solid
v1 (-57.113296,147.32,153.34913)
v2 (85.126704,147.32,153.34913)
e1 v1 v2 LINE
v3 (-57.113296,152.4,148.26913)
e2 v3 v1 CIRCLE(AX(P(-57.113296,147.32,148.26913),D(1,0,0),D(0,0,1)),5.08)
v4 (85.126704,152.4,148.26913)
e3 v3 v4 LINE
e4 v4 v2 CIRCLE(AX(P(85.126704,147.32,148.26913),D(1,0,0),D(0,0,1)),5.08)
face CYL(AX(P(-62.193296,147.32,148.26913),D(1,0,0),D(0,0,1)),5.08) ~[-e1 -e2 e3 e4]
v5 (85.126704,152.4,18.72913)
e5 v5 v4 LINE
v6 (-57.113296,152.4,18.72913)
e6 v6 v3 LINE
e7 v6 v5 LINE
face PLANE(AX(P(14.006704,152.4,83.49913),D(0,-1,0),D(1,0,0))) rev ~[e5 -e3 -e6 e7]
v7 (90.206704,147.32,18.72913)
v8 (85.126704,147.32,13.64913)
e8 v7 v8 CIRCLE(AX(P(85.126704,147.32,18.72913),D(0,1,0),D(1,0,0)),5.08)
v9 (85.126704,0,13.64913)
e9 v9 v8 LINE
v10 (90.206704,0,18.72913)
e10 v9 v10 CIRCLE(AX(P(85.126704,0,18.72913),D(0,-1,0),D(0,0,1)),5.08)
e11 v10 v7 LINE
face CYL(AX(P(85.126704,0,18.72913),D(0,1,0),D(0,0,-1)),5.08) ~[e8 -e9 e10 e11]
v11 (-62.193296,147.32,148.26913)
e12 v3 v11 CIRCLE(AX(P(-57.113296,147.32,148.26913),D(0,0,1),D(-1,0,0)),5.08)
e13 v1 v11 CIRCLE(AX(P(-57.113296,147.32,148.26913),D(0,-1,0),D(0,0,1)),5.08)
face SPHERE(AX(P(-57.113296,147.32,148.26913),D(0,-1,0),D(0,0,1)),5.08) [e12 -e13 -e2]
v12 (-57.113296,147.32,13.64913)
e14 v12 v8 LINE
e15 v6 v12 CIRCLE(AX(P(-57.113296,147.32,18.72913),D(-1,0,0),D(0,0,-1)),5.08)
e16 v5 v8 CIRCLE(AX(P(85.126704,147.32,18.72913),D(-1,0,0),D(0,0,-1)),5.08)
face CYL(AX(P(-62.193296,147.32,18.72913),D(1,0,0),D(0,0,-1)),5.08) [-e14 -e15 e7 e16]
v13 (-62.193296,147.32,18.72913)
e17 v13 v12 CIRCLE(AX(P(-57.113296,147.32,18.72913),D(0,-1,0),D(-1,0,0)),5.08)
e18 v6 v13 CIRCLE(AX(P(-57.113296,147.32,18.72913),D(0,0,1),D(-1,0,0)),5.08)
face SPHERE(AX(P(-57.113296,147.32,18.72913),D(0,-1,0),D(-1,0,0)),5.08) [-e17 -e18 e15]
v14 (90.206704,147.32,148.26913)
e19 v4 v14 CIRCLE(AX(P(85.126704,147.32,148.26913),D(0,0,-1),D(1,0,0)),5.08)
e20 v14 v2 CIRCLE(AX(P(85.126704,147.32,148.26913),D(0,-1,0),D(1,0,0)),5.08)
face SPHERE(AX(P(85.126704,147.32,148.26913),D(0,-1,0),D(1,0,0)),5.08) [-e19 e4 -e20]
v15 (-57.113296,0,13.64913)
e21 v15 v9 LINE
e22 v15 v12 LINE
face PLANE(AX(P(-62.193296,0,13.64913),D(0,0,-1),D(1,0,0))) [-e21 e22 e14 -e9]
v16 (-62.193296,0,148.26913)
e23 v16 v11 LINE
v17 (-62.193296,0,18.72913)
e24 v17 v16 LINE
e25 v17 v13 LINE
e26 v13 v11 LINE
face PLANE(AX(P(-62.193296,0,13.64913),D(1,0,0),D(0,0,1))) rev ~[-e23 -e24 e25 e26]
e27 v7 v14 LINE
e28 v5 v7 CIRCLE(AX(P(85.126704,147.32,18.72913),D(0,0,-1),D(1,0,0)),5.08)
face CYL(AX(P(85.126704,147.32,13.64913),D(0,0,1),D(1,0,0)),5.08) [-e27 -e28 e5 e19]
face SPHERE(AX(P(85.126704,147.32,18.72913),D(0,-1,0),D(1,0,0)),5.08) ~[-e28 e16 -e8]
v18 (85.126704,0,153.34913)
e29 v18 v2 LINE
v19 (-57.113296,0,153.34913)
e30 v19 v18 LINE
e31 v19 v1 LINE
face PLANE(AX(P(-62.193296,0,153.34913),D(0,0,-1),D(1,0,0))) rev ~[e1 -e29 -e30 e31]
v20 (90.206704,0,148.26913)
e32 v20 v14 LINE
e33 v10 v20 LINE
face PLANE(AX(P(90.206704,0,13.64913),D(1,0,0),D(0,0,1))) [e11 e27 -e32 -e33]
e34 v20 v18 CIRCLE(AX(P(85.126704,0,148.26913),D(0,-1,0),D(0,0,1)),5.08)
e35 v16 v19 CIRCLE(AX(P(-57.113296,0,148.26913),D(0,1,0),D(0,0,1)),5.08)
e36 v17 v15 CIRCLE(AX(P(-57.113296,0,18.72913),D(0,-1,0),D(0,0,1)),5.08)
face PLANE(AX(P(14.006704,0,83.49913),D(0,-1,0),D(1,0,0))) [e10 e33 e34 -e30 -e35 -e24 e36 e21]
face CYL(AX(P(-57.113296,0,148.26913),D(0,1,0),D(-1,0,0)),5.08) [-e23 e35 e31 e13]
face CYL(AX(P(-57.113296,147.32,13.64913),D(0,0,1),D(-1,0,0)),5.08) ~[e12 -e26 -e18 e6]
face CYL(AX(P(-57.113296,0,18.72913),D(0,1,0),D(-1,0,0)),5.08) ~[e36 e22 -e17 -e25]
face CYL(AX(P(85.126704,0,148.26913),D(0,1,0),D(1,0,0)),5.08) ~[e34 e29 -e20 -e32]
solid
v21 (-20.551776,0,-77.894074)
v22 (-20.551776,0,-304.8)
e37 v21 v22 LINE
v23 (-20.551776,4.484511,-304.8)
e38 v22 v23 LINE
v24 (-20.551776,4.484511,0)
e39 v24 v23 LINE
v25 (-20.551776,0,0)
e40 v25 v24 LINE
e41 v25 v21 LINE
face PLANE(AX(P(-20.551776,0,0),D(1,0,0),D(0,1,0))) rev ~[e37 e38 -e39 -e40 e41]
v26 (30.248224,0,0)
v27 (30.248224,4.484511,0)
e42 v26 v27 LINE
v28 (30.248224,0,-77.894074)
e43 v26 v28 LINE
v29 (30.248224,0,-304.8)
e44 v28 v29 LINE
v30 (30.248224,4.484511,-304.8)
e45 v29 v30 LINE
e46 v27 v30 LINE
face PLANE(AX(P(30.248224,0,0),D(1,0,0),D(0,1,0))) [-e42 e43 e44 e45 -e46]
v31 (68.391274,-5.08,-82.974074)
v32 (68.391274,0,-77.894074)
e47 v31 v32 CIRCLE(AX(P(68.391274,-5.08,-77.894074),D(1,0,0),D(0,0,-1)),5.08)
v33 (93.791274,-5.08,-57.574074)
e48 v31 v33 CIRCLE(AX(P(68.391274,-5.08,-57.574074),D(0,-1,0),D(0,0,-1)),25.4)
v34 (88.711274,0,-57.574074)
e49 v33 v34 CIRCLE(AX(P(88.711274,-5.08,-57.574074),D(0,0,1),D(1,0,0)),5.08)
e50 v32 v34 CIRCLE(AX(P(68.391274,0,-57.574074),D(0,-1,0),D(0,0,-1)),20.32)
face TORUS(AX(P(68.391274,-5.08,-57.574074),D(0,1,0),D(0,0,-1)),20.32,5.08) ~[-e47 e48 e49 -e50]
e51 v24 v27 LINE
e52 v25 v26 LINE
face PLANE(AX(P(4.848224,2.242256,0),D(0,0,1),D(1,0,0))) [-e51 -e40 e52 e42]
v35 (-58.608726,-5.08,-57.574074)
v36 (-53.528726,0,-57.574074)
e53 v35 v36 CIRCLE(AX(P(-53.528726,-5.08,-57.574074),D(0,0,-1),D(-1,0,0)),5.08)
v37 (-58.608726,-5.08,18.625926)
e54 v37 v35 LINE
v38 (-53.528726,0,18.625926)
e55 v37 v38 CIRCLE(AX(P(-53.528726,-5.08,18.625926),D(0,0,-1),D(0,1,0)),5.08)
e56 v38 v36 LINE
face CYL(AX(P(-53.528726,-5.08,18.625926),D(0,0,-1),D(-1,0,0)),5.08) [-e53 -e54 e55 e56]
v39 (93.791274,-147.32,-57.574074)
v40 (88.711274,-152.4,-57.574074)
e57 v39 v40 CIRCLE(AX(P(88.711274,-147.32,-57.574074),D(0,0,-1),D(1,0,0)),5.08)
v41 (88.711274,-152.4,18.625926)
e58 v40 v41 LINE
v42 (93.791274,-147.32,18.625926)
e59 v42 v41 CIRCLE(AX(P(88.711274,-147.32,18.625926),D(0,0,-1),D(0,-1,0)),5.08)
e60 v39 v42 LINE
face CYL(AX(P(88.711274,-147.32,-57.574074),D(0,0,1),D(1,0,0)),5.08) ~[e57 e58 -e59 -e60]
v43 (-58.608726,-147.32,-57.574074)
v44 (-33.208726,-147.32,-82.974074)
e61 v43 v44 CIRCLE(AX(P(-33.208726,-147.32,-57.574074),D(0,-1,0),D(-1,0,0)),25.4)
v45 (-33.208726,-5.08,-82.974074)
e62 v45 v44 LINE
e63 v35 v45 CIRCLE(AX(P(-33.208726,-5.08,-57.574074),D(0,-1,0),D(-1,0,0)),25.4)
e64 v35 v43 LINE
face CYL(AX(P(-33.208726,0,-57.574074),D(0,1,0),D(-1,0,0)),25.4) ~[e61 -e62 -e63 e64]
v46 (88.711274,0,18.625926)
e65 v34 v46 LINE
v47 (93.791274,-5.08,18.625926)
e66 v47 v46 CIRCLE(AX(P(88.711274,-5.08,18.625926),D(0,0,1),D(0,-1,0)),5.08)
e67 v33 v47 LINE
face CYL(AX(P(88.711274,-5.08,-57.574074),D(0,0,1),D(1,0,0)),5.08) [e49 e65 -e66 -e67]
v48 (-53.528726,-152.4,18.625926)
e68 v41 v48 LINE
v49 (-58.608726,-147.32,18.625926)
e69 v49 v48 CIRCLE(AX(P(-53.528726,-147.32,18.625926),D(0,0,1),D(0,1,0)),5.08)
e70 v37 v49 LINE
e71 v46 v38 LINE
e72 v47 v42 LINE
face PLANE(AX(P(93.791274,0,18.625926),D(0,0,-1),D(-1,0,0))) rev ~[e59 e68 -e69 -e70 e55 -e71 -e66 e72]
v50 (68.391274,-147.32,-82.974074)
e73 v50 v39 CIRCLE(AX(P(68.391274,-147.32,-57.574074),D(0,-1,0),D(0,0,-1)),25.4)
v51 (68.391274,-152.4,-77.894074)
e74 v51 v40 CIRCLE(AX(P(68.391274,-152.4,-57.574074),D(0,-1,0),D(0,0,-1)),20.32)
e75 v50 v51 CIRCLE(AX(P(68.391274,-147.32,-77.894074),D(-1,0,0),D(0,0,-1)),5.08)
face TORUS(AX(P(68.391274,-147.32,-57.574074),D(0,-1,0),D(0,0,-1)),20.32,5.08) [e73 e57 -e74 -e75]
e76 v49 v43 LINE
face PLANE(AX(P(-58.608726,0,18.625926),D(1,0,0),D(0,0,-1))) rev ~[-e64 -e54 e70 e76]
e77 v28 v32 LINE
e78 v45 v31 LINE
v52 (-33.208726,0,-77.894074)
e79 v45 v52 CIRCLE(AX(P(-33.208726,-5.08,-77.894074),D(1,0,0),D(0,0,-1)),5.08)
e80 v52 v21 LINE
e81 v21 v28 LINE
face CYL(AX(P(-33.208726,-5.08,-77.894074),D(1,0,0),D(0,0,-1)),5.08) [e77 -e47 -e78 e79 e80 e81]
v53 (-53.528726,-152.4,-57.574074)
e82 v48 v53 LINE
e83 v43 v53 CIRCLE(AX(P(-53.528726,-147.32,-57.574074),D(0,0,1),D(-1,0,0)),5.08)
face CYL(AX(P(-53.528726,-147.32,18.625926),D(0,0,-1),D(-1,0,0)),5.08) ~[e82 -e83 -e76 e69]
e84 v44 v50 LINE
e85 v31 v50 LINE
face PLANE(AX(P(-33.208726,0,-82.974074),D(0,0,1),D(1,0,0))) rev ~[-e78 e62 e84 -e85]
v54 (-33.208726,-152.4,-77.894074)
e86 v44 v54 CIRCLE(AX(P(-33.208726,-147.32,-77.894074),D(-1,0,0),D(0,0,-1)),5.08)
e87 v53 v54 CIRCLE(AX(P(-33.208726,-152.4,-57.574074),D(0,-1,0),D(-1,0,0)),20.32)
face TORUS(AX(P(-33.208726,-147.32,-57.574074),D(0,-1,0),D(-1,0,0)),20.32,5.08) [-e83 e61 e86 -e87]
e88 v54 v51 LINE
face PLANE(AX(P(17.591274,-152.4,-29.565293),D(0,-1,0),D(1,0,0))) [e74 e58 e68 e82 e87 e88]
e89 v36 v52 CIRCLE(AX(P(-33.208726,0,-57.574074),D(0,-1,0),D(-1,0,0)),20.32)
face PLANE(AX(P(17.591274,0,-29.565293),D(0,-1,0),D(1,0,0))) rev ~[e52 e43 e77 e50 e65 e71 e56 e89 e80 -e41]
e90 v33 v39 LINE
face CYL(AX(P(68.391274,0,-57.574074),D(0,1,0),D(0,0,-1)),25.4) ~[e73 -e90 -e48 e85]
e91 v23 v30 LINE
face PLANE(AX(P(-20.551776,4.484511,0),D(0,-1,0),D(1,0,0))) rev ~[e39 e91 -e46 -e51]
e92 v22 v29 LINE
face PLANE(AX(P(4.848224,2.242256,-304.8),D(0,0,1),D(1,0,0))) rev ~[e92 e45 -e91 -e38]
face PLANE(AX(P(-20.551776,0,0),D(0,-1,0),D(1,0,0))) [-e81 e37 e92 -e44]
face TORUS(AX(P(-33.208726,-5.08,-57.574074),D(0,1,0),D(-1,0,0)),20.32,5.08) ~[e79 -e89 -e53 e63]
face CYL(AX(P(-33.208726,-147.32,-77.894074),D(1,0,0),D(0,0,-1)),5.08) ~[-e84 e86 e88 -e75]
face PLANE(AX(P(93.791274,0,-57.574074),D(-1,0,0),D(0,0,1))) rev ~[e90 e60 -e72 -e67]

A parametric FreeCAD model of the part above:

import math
import FreeCAD as App
import Part
import Sketcher

V = App.Vector
Q = App.Units.Quantity


def edges_at(feature, points):
    """Names of the edges that pass closest to the given points."""
    edges = feature.Shape.Edges
    near = lambda p: min(range(len(edges)), key=lambda i: edges[i].distToShape(Part.Vertex(*p))[0])
    return sorted({f"Edge{near(p) + 1}" for p in points})


def add_polygon(sketch, points):
    """Adds a closed chain of lines whose ends are joined by coincident constraints."""
    first, n = sketch.GeometryCount, len(points)
    for a, b in zip(points, points[1:] + points[:1]):
        sketch.addGeometry(Part.LineSegment(App.Vector(*a, 0), App.Vector(*b, 0)), False)
    for i in range(n):
        sketch.addConstraint(Sketcher.Constraint("Coincident", first + i, 2, first + (i + 1) % n, 1))

doc = App.newDocument("Part")
body = doc.addObject("PartDesign::Body", "Body")

# Sketch on XZ plane
sketch1 = body.newObject("Sketcher::SketchObject", "Sketch")
sketch1.AttachmentSupport = (doc.getObject("XZ_Plane"), [""])
sketch1.MapMode = "FlatFace"
sketch1.addGeometry([
    Part.LineSegment(V(93.791274, 18.625926, 0), V(-58.608726, 18.625926, 0)),  # 0
    Part.LineSegment(V(-58.608726, 18.625926, 0), V(-58.608726, -57.574074, 0)),  # 1
    Part.ArcOfCircle(Part.Circle(V(-33.208726, -57.574074, 0), V(0, 0, 1), 25.4), math.radians(180), math.radians(270)),  # 2
    Part.LineSegment(V(-33.208726, -82.974074, 0), V(68.391274, -82.974074, 0)),  # 3
    Part.ArcOfCircle(Part.Circle(V(68.391274, -57.574074, 0), V(0, 0, 1), 25.4), math.radians(-90), math.radians(0)),  # 4
    Part.LineSegment(V(93.791274, -57.574074, 0), V(93.791274, 18.625926, 0)),  # 5
], False)
sketch1.addConstraint([
    Sketcher.Constraint("Coincident", 0, 2, 1, 1),
    Sketcher.Constraint("Tangent", 1, 2, 2, 1),
    Sketcher.Constraint("Tangent", 2, 2, 3, 1),
    Sketcher.Constraint("Tangent", 3, 2, 4, 1),
    Sketcher.Constraint("Tangent", 4, 2, 5, 1),
    Sketcher.Constraint("Coincident", 5, 2, 0, 1),
    Sketcher.Constraint("Horizontal", 0),
    Sketcher.Constraint("Vertical", 1),
    Sketcher.Constraint("Horizontal", 3),
    Sketcher.Constraint("Vertical", 5),
    Sketcher.Constraint("Equal", 2, 4),
    Sketcher.Constraint("Radius", 2, Q("1 in")),
    Sketcher.Constraint("DistanceX", 0, 2, 0, 1, Q("6 in")),
    Sketcher.Constraint("DistanceY", 1, 2, 1, 1, Q("3 in")),
    Sketcher.Constraint("DistanceX", 2, 3, -1, 1, Q("33.208726 mm")),
    Sketcher.Constraint("DistanceY", 2, 3, -1, 1, Q("57.574074 mm")),
])
pad1 = body.newObject("PartDesign::Pad", "Pad")
pad1.Profile = sketch1
pad1.Length = Q("6 in")
doc.recompute()

fillet = body.newObject("PartDesign::Fillet", "Fillet")
fillet.Base = (pad1, edges_at(pad1, [(93.791, -152.4, -19.474), (93.791, 0, -19.474)]))
fillet.Radius = Q("0.2 in")

# Sketch on XY plane
sketch2 = body.newObject("Sketcher::SketchObject", "Sketch001")
sketch2.AttachmentSupport = (doc.getObject("XY_Plane"), [""])
sketch2.MapMode = "FlatFace"
add_polygon(sketch2, [(-20.551776, 4.484511), (-20.551776, 0), (30.248224, 0), (30.248224, 4.484511)])  # lines 0-3
sketch2.addConstraint([
    Sketcher.Constraint("Vertical", 0),
    Sketcher.Constraint("Horizontal", 1),
    Sketcher.Constraint("Vertical", 2),
    Sketcher.Constraint("Horizontal", 3),
    Sketcher.Constraint("PointOnObject", 0, 2, -1),
    Sketcher.Constraint("DistanceX", 1, 1, 1, 2, Q("2 in")),
    Sketcher.Constraint("DistanceY", 0, 2, 0, 1, Q("4.484511 mm")),
    Sketcher.Constraint("DistanceX", 0, 2, -1, 1, Q("20.551776 mm")),
])
pad2 = body.newObject("PartDesign::Pad", "Pad001")
pad2.Profile = sketch2
pad2.Length = Q("12 in")
pad2.Reversed = True
body2 = doc.addObject("PartDesign::Body", "Body001")

# Sketch on XZ plane
sketch3 = body2.newObject("Sketcher::SketchObject", "Sketch002")
sketch3.AttachmentSupport = (doc.getObject("XZ_Plane001"), [""])
sketch3.MapMode = "FlatFace"
add_polygon(sketch3, [(-62.193296, 153.34913), (-62.193296, 13.64913), (90.206704, 13.64913), (90.206704, 153.34913)])  # lines 0-3
sketch3.addConstraint([
    Sketcher.Constraint("Vertical", 0),
    Sketcher.Constraint("Horizontal", 1),
    Sketcher.Constraint("Vertical", 2),
    Sketcher.Constraint("Horizontal", 3),
    Sketcher.Constraint("DistanceX", 1, 1, 1, 2, Q("6 in")),
    Sketcher.Constraint("DistanceY", 0, 2, 0, 1, Q("5.5 in")),
    Sketcher.Constraint("DistanceY", -1, 1, 0, 2, Q("13.64913 mm")),
    Sketcher.Constraint("DistanceX", 0, 2, -1, 1, Q("62.193296 mm")),
])
pad3 = body2.newObject("PartDesign::Pad", "Pad002")
pad3.Profile = sketch3
pad3.Length = Q("6 in")
pad3.Reversed = True
doc.recompute()

fillet2 = body2.newObject("PartDesign::Fillet", "Fillet001")
fillet2.Base = (pad3, edges_at(pad3, [
    (90.207, 76.2, 153.349),
    (90.207, 76.2, 13.649),
    (90.207, 152.4, 83.499),
    (-62.193, 76.2, 153.349),
    (14.007, 152.4, 153.349),
    (-62.193, 76.2, 13.649),
    (-62.193, 152.4, 83.499),
    (14.007, 152.4, 13.649),
]))
fillet2.Radius = Q("0.2 in")

doc.recompute()
